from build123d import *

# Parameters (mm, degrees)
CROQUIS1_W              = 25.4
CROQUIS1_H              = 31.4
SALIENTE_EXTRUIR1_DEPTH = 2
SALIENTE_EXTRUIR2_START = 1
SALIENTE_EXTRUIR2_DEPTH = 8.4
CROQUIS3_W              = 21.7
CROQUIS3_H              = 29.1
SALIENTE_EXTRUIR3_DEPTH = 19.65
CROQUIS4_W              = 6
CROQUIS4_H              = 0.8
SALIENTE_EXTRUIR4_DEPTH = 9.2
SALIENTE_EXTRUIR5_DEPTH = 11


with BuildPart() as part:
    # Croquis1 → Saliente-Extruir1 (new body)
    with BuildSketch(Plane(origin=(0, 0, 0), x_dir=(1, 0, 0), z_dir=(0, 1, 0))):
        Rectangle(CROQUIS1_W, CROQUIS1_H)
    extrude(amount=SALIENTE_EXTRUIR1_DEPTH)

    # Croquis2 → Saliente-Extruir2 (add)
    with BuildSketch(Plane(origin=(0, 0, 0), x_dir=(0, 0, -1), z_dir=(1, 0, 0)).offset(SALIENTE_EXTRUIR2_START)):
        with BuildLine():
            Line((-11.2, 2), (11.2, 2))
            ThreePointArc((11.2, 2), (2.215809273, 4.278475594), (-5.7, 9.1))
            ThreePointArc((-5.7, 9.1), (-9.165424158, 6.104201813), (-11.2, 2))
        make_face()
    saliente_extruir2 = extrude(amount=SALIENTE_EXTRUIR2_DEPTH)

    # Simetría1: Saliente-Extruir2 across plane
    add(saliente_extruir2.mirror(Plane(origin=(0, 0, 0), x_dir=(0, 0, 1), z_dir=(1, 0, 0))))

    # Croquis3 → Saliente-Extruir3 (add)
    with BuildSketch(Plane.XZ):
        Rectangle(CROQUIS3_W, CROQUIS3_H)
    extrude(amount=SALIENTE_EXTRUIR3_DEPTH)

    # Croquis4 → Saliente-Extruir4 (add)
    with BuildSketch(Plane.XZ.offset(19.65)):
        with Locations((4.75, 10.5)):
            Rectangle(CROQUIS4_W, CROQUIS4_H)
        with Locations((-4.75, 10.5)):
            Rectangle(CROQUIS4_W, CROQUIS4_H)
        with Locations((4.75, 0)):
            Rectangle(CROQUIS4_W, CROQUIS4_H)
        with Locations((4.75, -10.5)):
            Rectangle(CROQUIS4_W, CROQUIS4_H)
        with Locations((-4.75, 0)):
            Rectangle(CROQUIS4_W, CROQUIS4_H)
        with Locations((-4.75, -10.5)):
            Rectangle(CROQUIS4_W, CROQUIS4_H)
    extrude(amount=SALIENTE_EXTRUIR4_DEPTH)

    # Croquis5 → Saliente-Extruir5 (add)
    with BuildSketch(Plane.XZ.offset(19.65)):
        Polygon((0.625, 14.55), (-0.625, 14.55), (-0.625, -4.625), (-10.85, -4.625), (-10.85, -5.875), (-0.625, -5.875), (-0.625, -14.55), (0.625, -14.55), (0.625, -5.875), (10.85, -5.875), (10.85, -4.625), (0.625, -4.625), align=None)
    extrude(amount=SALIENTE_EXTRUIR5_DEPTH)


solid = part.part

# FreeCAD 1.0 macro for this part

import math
import FreeCAD as App
import Part
import Sketcher

V = App.Vector
Q = App.Units.Quantity

doc = App.newDocument("Part")
body = doc.addObject("PartDesign::Body", "Body")

# Sketch on XZ plane
sketch1 = body.newObject("Sketcher::SketchObject", "Sketch")
sketch1.AttachmentSupport = (doc.getObject("XZ_Plane"), [""])
sketch1.MapMode = "FlatFace"
sketch1.addGeometry(Part.LineSegment(V(-13, -16, 0), V(-13, 16, 0)), False)
sketch1.addGeometry(Part.LineSegment(V(-13, 16, 0), V(13, 16, 0)), False)
sketch1.addGeometry(Part.LineSegment(V(13, 16, 0), V(13, -16, 0)), False)
sketch1.addGeometry(Part.LineSegment(V(13, -16, 0), V(-13, -16, 0)), False)
sketch1.addConstraint(Sketcher.Constraint("Coincident", 0, 2, 1, 1))
sketch1.addConstraint(Sketcher.Constraint("Coincident", 1, 2, 2, 1))
sketch1.addConstraint(Sketcher.Constraint("Coincident", 2, 2, 3, 1))
sketch1.addConstraint(Sketcher.Constraint("Coincident", 3, 2, 0, 1))
sketch1.addConstraint(Sketcher.Constraint("Vertical", 0))
sketch1.addConstraint(Sketcher.Constraint("Horizontal", 1))
sketch1.addConstraint(Sketcher.Constraint("Vertical", 2))
sketch1.addConstraint(Sketcher.Constraint("Horizontal", 3))
sketch1.addConstraint(Sketcher.Constraint("Symmetric", 0, 2, 2, 2, -1, 1))
sketch1.addConstraint(Sketcher.Constraint("DistanceX", 1, 1, 1, 2, Q("25.4 mm")))
sketch1.addConstraint(Sketcher.Constraint("DistanceY", 0, 1, 0, 2, Q("31.4 mm")))
pad1 = body.newObject("PartDesign::Pad", "Pad")
pad1.Profile = sketch1
pad1.Length = 2
pad1.Reversed = True

# Sketch on YZ plane
sketch2 = body.newObject("Sketcher::SketchObject", "Sketch001")
sketch2.AttachmentSupport = (doc.getObject("YZ_Plane"), [""])
sketch2.MapMode = "FlatFace"
sketch2.AttachmentOffset = App.Placement(V(0, 0, 1), App.Rotation())
sketch2.addGeometry(Part.LineSegment(V(2, 11, 0), V(2, -11, 0)), False)
sketch2.addGeometry(Part.ArcOfCircle(Part.Circle(V(33, -14, 0), V(0, 0, 1), 31), math.radians(140), math.radians(174)), False)
sketch2.addGeometry(Part.ArcOfCircle(Part.Circle(V(-1, 0, 0), V(0, 0, 1), 12), math.radians(29), math.radians(75)), False)
sketch2.addConstraint(Sketcher.Constraint("Coincident", 0, 2, 1, 2))
sketch2.addConstraint(Sketcher.Constraint("Coincident", 1, 1, 2, 1))
sketch2.addConstraint(Sketcher.Constraint("Coincident", 2, 2, 0, 1))
sketch2.addConstraint(Sketcher.Constraint("Vertical", 0))
sketch2.addConstraint(Sketcher.Constraint("PointOnObject", 2, 3, -1))
sketch2.addConstraint(Sketcher.Constraint("DistanceY", 0, 2, 0, 1, Q("22.4 mm")))
sketch2.addConstraint(Sketcher.Constraint("DistanceX", -1, 1, 0, 2, Q("2 mm")))
sketch2.addConstraint(Sketcher.Constraint("DistanceY", 0, 2, -1, 1, Q("11.2 mm")))
sketch2.addConstraint(Sketcher.Constraint("DistanceX", -1, 1, 1, 1, Q("9.1 mm")))
sketch2.addConstraint(Sketcher.Constraint("DistanceY", -1, 1, 1, 1, Q("5.7 mm")))
sketch2.addConstraint(Sketcher.Constraint("Radius", 1, Q("31.144307 mm")))
pad2 = body.newObject("PartDesign::Pad", "Pad001")
pad2.Profile = sketch2
pad2.Length = 8.4
doc.recompute()

mirrored = body.newObject("PartDesign::Mirrored", "Mirrored")
mirrored.Originals = [pad2]
mirrored.MirrorPlane = (doc.getObject("YZ_Plane"), [""])
body.Tip = mirrored

# Sketch on XZ plane
sketch3 = body.newObject("Sketcher::SketchObject", "Sketch002")
sketch3.AttachmentSupport = (doc.getObject("XZ_Plane"), [""])
sketch3.MapMode = "FlatFace"
sketch3.addGeometry(Part.LineSegment(V(-11, 15, 0), V(-11, -15, 0)), False)
sketch3.addGeometry(Part.LineSegment(V(-11, -15, 0), V(11, -15, 0)), False)
sketch3.addGeometry(Part.LineSegment(V(11, -15, 0), V(11, 15, 0)), False)
sketch3.addGeometry(Part.LineSegment(V(11, 15, 0), V(-11, 15, 0)), False)
sketch3.addConstraint(Sketcher.Constraint("Coincident", 0, 2, 1, 1))
sketch3.addConstraint(Sketcher.Constraint("Coincident", 1, 2, 2, 1))
sketch3.addConstraint(Sketcher.Constraint("Coincident", 2, 2, 3, 1))
sketch3.addConstraint(Sketcher.Constraint("Coincident", 3, 2, 0, 1))
sketch3.addConstraint(Sketcher.Constraint("Vertical", 0))
sketch3.addConstraint(Sketcher.Constraint("Horizontal", 1))
sketch3.addConstraint(Sketcher.Constraint("Vertical", 2))
sketch3.addConstraint(Sketcher.Constraint("Horizontal", 3))
sketch3.addConstraint(Sketcher.Constraint("Symmetric", 0, 2, 2, 2, -1, 1))
sketch3.addConstraint(Sketcher.Constraint("DistanceX", 1, 1, 1, 2, Q("21.7 mm")))
sketch3.addConstraint(Sketcher.Constraint("DistanceY", 0, 2, 0, 1, Q("29.1 mm")))
pad3 = body.newObject("PartDesign::Pad", "Pad002")
pad3.Profile = sketch3
pad3.Length = 19.65

# Sketch on XZ plane
sketch4 = body.newObject("Sketcher::SketchObject", "Sketch003")
sketch4.AttachmentSupport = (doc.getObject("XZ_Plane"), [""])
sketch4.MapMode = "FlatFace"
sketch4.AttachmentOffset = App.Placement(V(0, 0, 19.65), App.Rotation())
sketch4.addGeometry(Part.LineSegment(V(1.8, 10.9, 0), V(1.8, 10.1, 0)), False)
sketch4.addGeometry(Part.LineSegment(V(1.8, 10.1, 0), V(7.8, 10.1, 0)), False)
sketch4.addGeometry(Part.LineSegment(V(7.8, 10.1, 0), V(7.8, 10.9, 0)), False)
sketch4.addGeometry(Part.LineSegment(V(7.8, 10.9, 0), V(1.8, 10.9, 0)), False)
sketch4.addGeometry(Part.LineSegment(V(-7.8, 10.9, 0), V(-7.8, 10.1, 0)), False)
sketch4.addGeometry(Part.LineSegment(V(-7.8, 10.1, 0), V(-1.8, 10.1, 0)), False)
sketch4.addGeometry(Part.LineSegment(V(-1.8, 10.1, 0), V(-1.8, 10.9, 0)), False)
sketch4.addGeometry(Part.LineSegment(V(-1.8, 10.9, 0), V(-7.8, 10.9, 0)), False)
sketch4.addGeometry(Part.LineSegment(V(1.8, 0.4, 0), V(1.8, -0.4, 0)), False)
sketch4.addGeometry(Part.LineSegment(V(1.8, -0.4, 0), V(7.8, -0.4, 0)), False)
sketch4.addGeometry(Part.LineSegment(V(7.8, -0.4, 0), V(7.8, 0.4, 0)), False)
sketch4.addGeometry(Part.LineSegment(V(7.8, 0.4, 0), V(1.8, 0.4, 0)), False)
sketch4.addGeometry(Part.LineSegment(V(1.8, -10.1, 0), V(1.8, -10.9, 0)), False)
sketch4.addGeometry(Part.LineSegment(V(1.8, -10.9, 0), V(7.8, -10.9, 0)), False)
sketch4.addGeometry(Part.LineSegment(V(7.8, -10.9, 0), V(7.8, -10.1, 0)), False)
sketch4.addGeometry(Part.LineSegment(V(7.8, -10.1, 0), V(1.8, -10.1, 0)), False)
sketch4.addGeometry(Part.LineSegment(V(-7.8, 0.4, 0), V(-7.8, -0.4, 0)), False)
sketch4.addGeometry(Part.LineSegment(V(-7.8, -0.4, 0), V(-1.8, -0.4, 0)), False)
sketch4.addGeometry(Part.LineSegment(V(-1.8, -0.4, 0), V(-1.8, 0.4, 0)), False)
sketch4.addGeometry(Part.LineSegment(V(-1.8, 0.4, 0), V(-7.8, 0.4, 0)), False)
sketch4.addGeometry(Part.LineSegment(V(-7.8, -10.1, 0), V(-7.8, -10.9, 0)), False)
sketch4.addGeometry(Part.LineSegment(V(-7.8, -10.9, 0), V(-1.8, -10.9, 0)), False)
sketch4.addGeometry(Part.LineSegment(V(-1.8, -10.9, 0), V(-1.8, -10.1, 0)), False)
sketch4.addGeometry(Part.LineSegment(V(-1.8, -10.1, 0), V(-7.8, -10.1, 0)), False)
sketch4.addConstraint(Sketcher.Constraint("Coincident", 0, 2, 1, 1))
sketch4.addConstraint(Sketcher.Constraint("Coincident", 1, 2, 2, 1))
sketch4.addConstraint(Sketcher.Constraint("Coincident", 2, 2, 3, 1))
sketch4.addConstraint(Sketcher.Constraint("Coincident", 3, 2, 0, 1))
sketch4.addConstraint(Sketcher.Constraint("Coincident", 4, 2, 5, 1))
sketch4.addConstraint(Sketcher.Constraint("Coincident", 5, 2, 6, 1))
sketch4.addConstraint(Sketcher.Constraint("Coincident", 6, 2, 7, 1))
sketch4.addConstraint(Sketcher.Constraint("Coincident", 7, 2, 4, 1))
sketch4.addConstraint(Sketcher.Constraint("Coincident", 8, 2, 9, 1))
sketch4.addConstraint(Sketcher.Constraint("Coincident", 9, 2, 10, 1))
sketch4.addConstraint(Sketcher.Constraint("Coincident", 10, 2, 11, 1))
sketch4.addConstraint(Sketcher.Constraint("Coincident", 11, 2, 8, 1))
sketch4.addConstraint(Sketcher.Constraint("Coincident", 12, 2, 13, 1))
sketch4.addConstraint(Sketcher.Constraint("Coincident", 13, 2, 14, 1))
sketch4.addConstraint(Sketcher.Constraint("Coincident", 14, 2, 15, 1))
sketch4.addConstraint(Sketcher.Constraint("Coincident", 15, 2, 12, 1))
sketch4.addConstraint(Sketcher.Constraint("Coincident", 16, 2, 17, 1))
sketch4.addConstraint(Sketcher.Constraint("Coincident", 17, 2, 18, 1))
sketch4.addConstraint(Sketcher.Constraint("Coincident", 18, 2, 19, 1))
sketch4.addConstraint(Sketcher.Constraint("Coincident", 19, 2, 16, 1))
sketch4.addConstraint(Sketcher.Constraint("Coincident", 20, 2, 21, 1))
sketch4.addConstraint(Sketcher.Constraint("Coincident", 21, 2, 22, 1))
sketch4.addConstraint(Sketcher.Constraint("Coincident", 22, 2, 23, 1))
sketch4.addConstraint(Sketcher.Constraint("Coincident", 23, 2, 20, 1))
sketch4.addConstraint(Sketcher.Constraint("Vertical", 0))
sketch4.addConstraint(Sketcher.Constraint("Horizontal", 1))
sketch4.addConstraint(Sketcher.Constraint("Vertical", 2))
sketch4.addConstraint(Sketcher.Constraint("Horizontal", 3))
sketch4.addConstraint(Sketcher.Constraint("Vertical", 4))
sketch4.addConstraint(Sketcher.Constraint("Horizontal", 5))
sketch4.addConstraint(Sketcher.Constraint("Vertical", 6))
sketch4.addConstraint(Sketcher.Constraint("Horizontal", 7))
sketch4.addConstraint(Sketcher.Constraint("Vertical", 8))
sketch4.addConstraint(Sketcher.Constraint("Horizontal", 9))
sketch4.addConstraint(Sketcher.Constraint("Vertical", 10))
sketch4.addConstraint(Sketcher.Constraint("Horizontal", 11))
sketch4.addConstraint(Sketcher.Constraint("Vertical", 12))
sketch4.addConstraint(Sketcher.Constraint("Horizontal", 13))
sketch4.addConstraint(Sketcher.Constraint("Vertical", 14))
sketch4.addConstraint(Sketcher.Constraint("Horizontal", 15))
sketch4.addConstraint(Sketcher.Constraint("Vertical", 16))
sketch4.addConstraint(Sketcher.Constraint("Horizontal", 17))
sketch4.addConstraint(Sketcher.Constraint("Vertical", 18))
sketch4.addConstraint(Sketcher.Constraint("Horizontal", 19))
sketch4.addConstraint(Sketcher.Constraint("Vertical", 20))
sketch4.addConstraint(Sketcher.Constraint("Horizontal", 21))
sketch4.addConstraint(Sketcher.Constraint("Vertical", 22))
sketch4.addConstraint(Sketcher.Constraint("Horizontal", 23))
sketch4.addConstraint(Sketcher.Constraint("Symmetric", 6, 2, 12, 2, -1, 1))
sketch4.addConstraint(Sketcher.Constraint("Symmetric", 4, 2, 14, 2, -1, 1))
sketch4.addConstraint(Sketcher.Constraint("Symmetric", 10, 2, 16, 2, -1, 1))
sketch4.addConstraint(Sketcher.Constraint("Symmetric", 8, 2, 18, 2, -1, 1))
sketch4.addConstraint(Sketcher.Constraint("Symmetric", 2, 2, 20, 2, -1, 1))
sketch4.addConstraint(Sketcher.Constraint("Symmetric", 0, 2, 22, 2, -1, 1))
sketch4.addConstraint(Sketcher.Constraint("Symmetric", 1, 2, 4, 2, -2))
sketch4.addConstraint(Sketcher.Constraint("Symmetric", 3, 2, 6, 2, -2))
sketch4.addConstraint(Sketcher.Constraint("Horizontal", 9, 2, 16, 2))
sketch4.addConstraint(Sketcher.Constraint("Vertical", 3, 2, 8, 2))
sketch4.addConstraint(Sketcher.Constraint("Vertical", 2, 2, 9, 2))
sketch4.addConstraint(Sketcher.Constraint("Equal", 6, 8))
sketch4.addConstraint(Sketcher.Constraint("DistanceX", 1, 1, 1, 2, Q("6 mm")))
sketch4.addConstraint(Sketcher.Constraint("DistanceY", 0, 2, 0, 1, Q("0.8 mm")))
sketch4.addConstraint(Sketcher.Constraint("DistanceY", 12, 2, 0, 2, Q("21 mm")))
sketch4.addConstraint(Sketcher.Constraint("DistanceX", 4, 2, 0, 2, Q("9.5 mm")))
pad4 = body.newObject("PartDesign::Pad", "Pad003")
pad4.Profile = sketch4
pad4.Length = 9.2

# Sketch on XZ plane
sketch5 = body.newObject("Sketcher::SketchObject", "Sketch004")
sketch5.AttachmentSupport = (doc.getObject("XZ_Plane"), [""])
sketch5.MapMode = "FlatFace"
sketch5.AttachmentOffset = App.Placement(V(0, 0, 19.65), App.Rotation())
sketch5.addGeometry(Part.LineSegment(V(0.6, 14.6, 0), V(-0.6, 14.6, 0)), False)
sketch5.addGeometry(Part.LineSegment(V(-0.6, 14.6, 0), V(-0.6, -4.6, 0)), False)
sketch5.addGeometry(Part.LineSegment(V(-0.6, -4.6, 0), V(-10.8, -4.6, 0)), False)
sketch5.addGeometry(Part.LineSegment(V(-10.8, -4.6, 0), V(-10.8, -5.9, 0)), False)
sketch5.addGeometry(Part.LineSegment(V(-10.8, -5.9, 0), V(-0.6, -5.9, 0)), False)
sketch5.addGeometry(Part.LineSegment(V(-0.6, -5.9, 0), V(-0.6, -14.6, 0)), False)
sketch5.addGeometry(Part.LineSegment(V(-0.6, -14.6, 0), V(0.6, -14.6, 0)), False)
sketch5.addGeometry(Part.LineSegment(V(0.6, -14.6, 0), V(0.6, -5.9, 0)), False)
sketch5.addGeometry(Part.LineSegment(V(0.6, -5.9, 0), V(10.8, -5.9, 0)), False)
sketch5.addGeometry(Part.LineSegment(V(10.8, -5.9, 0), V(10.8, -4.6, 0)), False)
sketch5.addGeometry(Part.LineSegment(V(10.8, -4.6, 0), V(0.6, -4.6, 0)), False)
sketch5.addGeometry(Part.LineSegment(V(0.6, -4.6, 0), V(0.6, 14.6, 0)), False)
sketch5.addConstraint(Sketcher.Constraint("Coincident", 0, 2, 1, 1))
sketch5.addConstraint(Sketcher.Constraint("Coincident", 1, 2, 2, 1))
sketch5.addConstraint(Sketcher.Constraint("Coincident", 2, 2, 3, 1))
sketch5.addConstraint(Sketcher.Constraint("Coincident", 3, 2, 4, 1))
sketch5.addConstraint(Sketcher.Constraint("Coincident", 4, 2, 5, 1))
sketch5.addConstraint(Sketcher.Constraint("Coincident", 5, 2, 6, 1))
sketch5.addConstraint(Sketcher.Constraint("Coincident", 6, 2, 7, 1))
sketch5.addConstraint(Sketcher.Constraint("Coincident", 7, 2, 8, 1))
sketch5.addConstraint(Sketcher.Constraint("Coincident", 8, 2, 9, 1))
sketch5.addConstraint(Sketcher.Constraint("Coincident", 9, 2, 10, 1))
sketch5.addConstraint(Sketcher.Constraint("Coincident", 10, 2, 11, 1))
sketch5.addConstraint(Sketcher.Constraint("Coincident", 11, 2, 0, 1))
sketch5.addConstraint(Sketcher.Constraint("Horizontal", 0))
sketch5.addConstraint(Sketcher.Constraint("Vertical", 1))
sketch5.addConstraint(Sketcher.Constraint("Horizontal", 2))
sketch5.addConstraint(Sketcher.Constraint("Vertical", 3))
sketch5.addConstraint(Sketcher.Constraint("Horizontal", 4))
sketch5.addConstraint(Sketcher.Constraint("Vertical", 5))
sketch5.addConstraint(Sketcher.Constraint("Horizontal", 6))
sketch5.addConstraint(Sketcher.Constraint("Vertical", 7))
sketch5.addConstraint(Sketcher.Constraint("Horizontal", 8))
sketch5.addConstraint(Sketcher.Constraint("Vertical", 9))
sketch5.addConstraint(Sketcher.Constraint("Horizontal", 10))
sketch5.addConstraint(Sketcher.Constraint("Vertical", 11))
sketch5.addConstraint(Sketcher.Constraint("Symmetric", 0, 2, 6, 2, -1, 1))
sketch5.addConstraint(Sketcher.Constraint("Symmetric", 4, 2, 7, 2, -2))
sketch5.addConstraint(Sketcher.Constraint("Symmetric", 2, 2, 9, 2, -2))
sketch5.addConstraint(Sketcher.Constraint("Vertical", 7, 2, 10, 2))
sketch5.addConstraint(Sketcher.Constraint("Equal", 6, 3))
sketch5.addConstraint(Sketcher.Constraint("DistanceX", 0, 2, 0, 1, Q("1.25 mm")))
sketch5.addConstraint(Sketcher.Constraint("DistanceY", 5, 2, 0, 2, Q("29.1 mm")))
sketch5.addConstraint(Sketcher.Constraint("DistanceX", 2, 2, 2, 1, Q("10.225 mm")))
sketch5.addConstraint(Sketcher.Constraint("DistanceY", 1, 2, 1, 1, Q("19.175 mm")))
pad5 = body.newObject("PartDesign::Pad", "Pad004")
pad5.Profile = sketch5
pad5.Length = 11

doc.recompute()
